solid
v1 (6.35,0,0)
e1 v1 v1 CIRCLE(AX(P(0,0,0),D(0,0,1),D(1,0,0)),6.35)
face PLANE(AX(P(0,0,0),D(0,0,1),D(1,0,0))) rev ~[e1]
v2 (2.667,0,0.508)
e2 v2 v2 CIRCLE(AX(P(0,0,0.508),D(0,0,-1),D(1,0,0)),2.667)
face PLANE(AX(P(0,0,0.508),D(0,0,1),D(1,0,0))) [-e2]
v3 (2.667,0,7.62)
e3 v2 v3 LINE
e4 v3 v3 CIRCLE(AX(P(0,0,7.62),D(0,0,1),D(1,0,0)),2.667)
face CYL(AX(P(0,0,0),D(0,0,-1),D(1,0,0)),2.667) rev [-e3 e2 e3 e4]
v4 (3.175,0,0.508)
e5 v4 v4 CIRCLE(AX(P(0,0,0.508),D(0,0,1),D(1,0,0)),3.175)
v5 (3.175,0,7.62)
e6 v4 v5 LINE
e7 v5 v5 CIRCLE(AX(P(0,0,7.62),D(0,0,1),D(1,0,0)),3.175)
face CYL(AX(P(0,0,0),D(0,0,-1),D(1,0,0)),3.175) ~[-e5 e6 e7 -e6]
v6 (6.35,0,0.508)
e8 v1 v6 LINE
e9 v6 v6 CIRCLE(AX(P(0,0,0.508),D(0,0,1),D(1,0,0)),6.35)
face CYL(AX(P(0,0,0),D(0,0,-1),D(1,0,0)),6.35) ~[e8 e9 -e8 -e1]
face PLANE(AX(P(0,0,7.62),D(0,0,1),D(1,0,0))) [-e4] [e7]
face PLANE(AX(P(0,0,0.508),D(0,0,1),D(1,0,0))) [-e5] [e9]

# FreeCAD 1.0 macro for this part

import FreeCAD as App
import Part
import Sketcher
from FreeCAD import Vector
Q = App.Units.Quantity


def faces_at(feature, points):
    """Names of the faces that lie closest to the given points."""
    faces = feature.Shape.Faces
    near = lambda p: min(range(len(faces)), key=lambda i: faces[i].distToShape(Part.Vertex(*p))[0])
    return sorted({f"Face{near(p) + 1}" for p in points})

doc = App.newDocument("Part")
params = doc.addObject("Spreadsheet::Sheet", "Params")
for row, (alias, value) in enumerate([
    ("sketch1_diameter", "0.25 in"),
    ("pad1_length", "0.3 in"),
    ("thickness_wall", "0.02 in"),
    ("sketch2_diameter", "0.5 in"),
    ("sketch2_diameter2", "0.25 in"),
    ("pad2_length", "0.02 in"),
], start=1):
    params.set(f"A{row}", alias)
    params.set(f"B{row}", "=" + value)
    params.setAlias(f"B{row}", alias)

body = doc.addObject("PartDesign::Body", "Body")

sketch1 = body.newObject("Sketcher::SketchObject", "Sketch")
sketch1.AttachmentSupport = (doc.getObject("XY_Plane"), [""])
sketch1.MapMode = "FlatFace"
sketch1.addGeometry(Part.Circle(Vector(0, 0, 0), Vector(0, 0, 1), 3.2), False)
sketch1.addConstraint(Sketcher.Constraint("Coincident", 0, 3, -1, 1))
sketch1.addConstraint(Sketcher.Constraint("Diameter", 0, Q("0.25 in")))
sketch1.setExpression("Constraints[1]", "Params.sketch1_diameter")
pad1 = body.newObject("PartDesign::Pad", "Pad")
pad1.Profile = sketch1
pad1.setExpression("Length", "Params.pad1_length")
doc.recompute()

thickness = body.newObject("PartDesign::Thickness", "Thickness")
thickness.Base = (pad1, faces_at(pad1, [(0, 0, 7.62)]))
thickness.setExpression("Value", "Params.thickness_wall")
thickness.Reversed = True
thickness.Join = "Arc"

sketch2 = body.newObject("Sketcher::SketchObject", "Sketch001")
sketch2.AttachmentSupport = (doc.getObject("XY_Plane"), [""])
sketch2.MapMode = "FlatFace"
sketch2.addGeometry(Part.Circle(Vector(0, 0, 0), Vector(0, 0, 1), 6.3), False)
sketch2.addGeometry(Part.Circle(Vector(0, 0, 0), Vector(0, 0, 1), 3.2), False)
sketch2.addConstraint(Sketcher.Constraint("Coincident", 0, 3, -1, 1))
sketch2.addConstraint(Sketcher.Constraint("Coincident", 1, 3, -1, 1))
sketch2.addConstraint(Sketcher.Constraint("Diameter", 0, Q("0.5 in")))
sketch2.addConstraint(Sketcher.Constraint("Diameter", 1, Q("0.25 in")))
sketch2.setExpression("Constraints[2]", "Params.sketch2_diameter")
sketch2.setExpression("Constraints[3]", "Params.sketch2_diameter2")
pad2 = body.newObject("PartDesign::Pad", "Pad001")
pad2.Profile = sketch2
pad2.setExpression("Length", "Params.pad2_length")

doc.recompute()
